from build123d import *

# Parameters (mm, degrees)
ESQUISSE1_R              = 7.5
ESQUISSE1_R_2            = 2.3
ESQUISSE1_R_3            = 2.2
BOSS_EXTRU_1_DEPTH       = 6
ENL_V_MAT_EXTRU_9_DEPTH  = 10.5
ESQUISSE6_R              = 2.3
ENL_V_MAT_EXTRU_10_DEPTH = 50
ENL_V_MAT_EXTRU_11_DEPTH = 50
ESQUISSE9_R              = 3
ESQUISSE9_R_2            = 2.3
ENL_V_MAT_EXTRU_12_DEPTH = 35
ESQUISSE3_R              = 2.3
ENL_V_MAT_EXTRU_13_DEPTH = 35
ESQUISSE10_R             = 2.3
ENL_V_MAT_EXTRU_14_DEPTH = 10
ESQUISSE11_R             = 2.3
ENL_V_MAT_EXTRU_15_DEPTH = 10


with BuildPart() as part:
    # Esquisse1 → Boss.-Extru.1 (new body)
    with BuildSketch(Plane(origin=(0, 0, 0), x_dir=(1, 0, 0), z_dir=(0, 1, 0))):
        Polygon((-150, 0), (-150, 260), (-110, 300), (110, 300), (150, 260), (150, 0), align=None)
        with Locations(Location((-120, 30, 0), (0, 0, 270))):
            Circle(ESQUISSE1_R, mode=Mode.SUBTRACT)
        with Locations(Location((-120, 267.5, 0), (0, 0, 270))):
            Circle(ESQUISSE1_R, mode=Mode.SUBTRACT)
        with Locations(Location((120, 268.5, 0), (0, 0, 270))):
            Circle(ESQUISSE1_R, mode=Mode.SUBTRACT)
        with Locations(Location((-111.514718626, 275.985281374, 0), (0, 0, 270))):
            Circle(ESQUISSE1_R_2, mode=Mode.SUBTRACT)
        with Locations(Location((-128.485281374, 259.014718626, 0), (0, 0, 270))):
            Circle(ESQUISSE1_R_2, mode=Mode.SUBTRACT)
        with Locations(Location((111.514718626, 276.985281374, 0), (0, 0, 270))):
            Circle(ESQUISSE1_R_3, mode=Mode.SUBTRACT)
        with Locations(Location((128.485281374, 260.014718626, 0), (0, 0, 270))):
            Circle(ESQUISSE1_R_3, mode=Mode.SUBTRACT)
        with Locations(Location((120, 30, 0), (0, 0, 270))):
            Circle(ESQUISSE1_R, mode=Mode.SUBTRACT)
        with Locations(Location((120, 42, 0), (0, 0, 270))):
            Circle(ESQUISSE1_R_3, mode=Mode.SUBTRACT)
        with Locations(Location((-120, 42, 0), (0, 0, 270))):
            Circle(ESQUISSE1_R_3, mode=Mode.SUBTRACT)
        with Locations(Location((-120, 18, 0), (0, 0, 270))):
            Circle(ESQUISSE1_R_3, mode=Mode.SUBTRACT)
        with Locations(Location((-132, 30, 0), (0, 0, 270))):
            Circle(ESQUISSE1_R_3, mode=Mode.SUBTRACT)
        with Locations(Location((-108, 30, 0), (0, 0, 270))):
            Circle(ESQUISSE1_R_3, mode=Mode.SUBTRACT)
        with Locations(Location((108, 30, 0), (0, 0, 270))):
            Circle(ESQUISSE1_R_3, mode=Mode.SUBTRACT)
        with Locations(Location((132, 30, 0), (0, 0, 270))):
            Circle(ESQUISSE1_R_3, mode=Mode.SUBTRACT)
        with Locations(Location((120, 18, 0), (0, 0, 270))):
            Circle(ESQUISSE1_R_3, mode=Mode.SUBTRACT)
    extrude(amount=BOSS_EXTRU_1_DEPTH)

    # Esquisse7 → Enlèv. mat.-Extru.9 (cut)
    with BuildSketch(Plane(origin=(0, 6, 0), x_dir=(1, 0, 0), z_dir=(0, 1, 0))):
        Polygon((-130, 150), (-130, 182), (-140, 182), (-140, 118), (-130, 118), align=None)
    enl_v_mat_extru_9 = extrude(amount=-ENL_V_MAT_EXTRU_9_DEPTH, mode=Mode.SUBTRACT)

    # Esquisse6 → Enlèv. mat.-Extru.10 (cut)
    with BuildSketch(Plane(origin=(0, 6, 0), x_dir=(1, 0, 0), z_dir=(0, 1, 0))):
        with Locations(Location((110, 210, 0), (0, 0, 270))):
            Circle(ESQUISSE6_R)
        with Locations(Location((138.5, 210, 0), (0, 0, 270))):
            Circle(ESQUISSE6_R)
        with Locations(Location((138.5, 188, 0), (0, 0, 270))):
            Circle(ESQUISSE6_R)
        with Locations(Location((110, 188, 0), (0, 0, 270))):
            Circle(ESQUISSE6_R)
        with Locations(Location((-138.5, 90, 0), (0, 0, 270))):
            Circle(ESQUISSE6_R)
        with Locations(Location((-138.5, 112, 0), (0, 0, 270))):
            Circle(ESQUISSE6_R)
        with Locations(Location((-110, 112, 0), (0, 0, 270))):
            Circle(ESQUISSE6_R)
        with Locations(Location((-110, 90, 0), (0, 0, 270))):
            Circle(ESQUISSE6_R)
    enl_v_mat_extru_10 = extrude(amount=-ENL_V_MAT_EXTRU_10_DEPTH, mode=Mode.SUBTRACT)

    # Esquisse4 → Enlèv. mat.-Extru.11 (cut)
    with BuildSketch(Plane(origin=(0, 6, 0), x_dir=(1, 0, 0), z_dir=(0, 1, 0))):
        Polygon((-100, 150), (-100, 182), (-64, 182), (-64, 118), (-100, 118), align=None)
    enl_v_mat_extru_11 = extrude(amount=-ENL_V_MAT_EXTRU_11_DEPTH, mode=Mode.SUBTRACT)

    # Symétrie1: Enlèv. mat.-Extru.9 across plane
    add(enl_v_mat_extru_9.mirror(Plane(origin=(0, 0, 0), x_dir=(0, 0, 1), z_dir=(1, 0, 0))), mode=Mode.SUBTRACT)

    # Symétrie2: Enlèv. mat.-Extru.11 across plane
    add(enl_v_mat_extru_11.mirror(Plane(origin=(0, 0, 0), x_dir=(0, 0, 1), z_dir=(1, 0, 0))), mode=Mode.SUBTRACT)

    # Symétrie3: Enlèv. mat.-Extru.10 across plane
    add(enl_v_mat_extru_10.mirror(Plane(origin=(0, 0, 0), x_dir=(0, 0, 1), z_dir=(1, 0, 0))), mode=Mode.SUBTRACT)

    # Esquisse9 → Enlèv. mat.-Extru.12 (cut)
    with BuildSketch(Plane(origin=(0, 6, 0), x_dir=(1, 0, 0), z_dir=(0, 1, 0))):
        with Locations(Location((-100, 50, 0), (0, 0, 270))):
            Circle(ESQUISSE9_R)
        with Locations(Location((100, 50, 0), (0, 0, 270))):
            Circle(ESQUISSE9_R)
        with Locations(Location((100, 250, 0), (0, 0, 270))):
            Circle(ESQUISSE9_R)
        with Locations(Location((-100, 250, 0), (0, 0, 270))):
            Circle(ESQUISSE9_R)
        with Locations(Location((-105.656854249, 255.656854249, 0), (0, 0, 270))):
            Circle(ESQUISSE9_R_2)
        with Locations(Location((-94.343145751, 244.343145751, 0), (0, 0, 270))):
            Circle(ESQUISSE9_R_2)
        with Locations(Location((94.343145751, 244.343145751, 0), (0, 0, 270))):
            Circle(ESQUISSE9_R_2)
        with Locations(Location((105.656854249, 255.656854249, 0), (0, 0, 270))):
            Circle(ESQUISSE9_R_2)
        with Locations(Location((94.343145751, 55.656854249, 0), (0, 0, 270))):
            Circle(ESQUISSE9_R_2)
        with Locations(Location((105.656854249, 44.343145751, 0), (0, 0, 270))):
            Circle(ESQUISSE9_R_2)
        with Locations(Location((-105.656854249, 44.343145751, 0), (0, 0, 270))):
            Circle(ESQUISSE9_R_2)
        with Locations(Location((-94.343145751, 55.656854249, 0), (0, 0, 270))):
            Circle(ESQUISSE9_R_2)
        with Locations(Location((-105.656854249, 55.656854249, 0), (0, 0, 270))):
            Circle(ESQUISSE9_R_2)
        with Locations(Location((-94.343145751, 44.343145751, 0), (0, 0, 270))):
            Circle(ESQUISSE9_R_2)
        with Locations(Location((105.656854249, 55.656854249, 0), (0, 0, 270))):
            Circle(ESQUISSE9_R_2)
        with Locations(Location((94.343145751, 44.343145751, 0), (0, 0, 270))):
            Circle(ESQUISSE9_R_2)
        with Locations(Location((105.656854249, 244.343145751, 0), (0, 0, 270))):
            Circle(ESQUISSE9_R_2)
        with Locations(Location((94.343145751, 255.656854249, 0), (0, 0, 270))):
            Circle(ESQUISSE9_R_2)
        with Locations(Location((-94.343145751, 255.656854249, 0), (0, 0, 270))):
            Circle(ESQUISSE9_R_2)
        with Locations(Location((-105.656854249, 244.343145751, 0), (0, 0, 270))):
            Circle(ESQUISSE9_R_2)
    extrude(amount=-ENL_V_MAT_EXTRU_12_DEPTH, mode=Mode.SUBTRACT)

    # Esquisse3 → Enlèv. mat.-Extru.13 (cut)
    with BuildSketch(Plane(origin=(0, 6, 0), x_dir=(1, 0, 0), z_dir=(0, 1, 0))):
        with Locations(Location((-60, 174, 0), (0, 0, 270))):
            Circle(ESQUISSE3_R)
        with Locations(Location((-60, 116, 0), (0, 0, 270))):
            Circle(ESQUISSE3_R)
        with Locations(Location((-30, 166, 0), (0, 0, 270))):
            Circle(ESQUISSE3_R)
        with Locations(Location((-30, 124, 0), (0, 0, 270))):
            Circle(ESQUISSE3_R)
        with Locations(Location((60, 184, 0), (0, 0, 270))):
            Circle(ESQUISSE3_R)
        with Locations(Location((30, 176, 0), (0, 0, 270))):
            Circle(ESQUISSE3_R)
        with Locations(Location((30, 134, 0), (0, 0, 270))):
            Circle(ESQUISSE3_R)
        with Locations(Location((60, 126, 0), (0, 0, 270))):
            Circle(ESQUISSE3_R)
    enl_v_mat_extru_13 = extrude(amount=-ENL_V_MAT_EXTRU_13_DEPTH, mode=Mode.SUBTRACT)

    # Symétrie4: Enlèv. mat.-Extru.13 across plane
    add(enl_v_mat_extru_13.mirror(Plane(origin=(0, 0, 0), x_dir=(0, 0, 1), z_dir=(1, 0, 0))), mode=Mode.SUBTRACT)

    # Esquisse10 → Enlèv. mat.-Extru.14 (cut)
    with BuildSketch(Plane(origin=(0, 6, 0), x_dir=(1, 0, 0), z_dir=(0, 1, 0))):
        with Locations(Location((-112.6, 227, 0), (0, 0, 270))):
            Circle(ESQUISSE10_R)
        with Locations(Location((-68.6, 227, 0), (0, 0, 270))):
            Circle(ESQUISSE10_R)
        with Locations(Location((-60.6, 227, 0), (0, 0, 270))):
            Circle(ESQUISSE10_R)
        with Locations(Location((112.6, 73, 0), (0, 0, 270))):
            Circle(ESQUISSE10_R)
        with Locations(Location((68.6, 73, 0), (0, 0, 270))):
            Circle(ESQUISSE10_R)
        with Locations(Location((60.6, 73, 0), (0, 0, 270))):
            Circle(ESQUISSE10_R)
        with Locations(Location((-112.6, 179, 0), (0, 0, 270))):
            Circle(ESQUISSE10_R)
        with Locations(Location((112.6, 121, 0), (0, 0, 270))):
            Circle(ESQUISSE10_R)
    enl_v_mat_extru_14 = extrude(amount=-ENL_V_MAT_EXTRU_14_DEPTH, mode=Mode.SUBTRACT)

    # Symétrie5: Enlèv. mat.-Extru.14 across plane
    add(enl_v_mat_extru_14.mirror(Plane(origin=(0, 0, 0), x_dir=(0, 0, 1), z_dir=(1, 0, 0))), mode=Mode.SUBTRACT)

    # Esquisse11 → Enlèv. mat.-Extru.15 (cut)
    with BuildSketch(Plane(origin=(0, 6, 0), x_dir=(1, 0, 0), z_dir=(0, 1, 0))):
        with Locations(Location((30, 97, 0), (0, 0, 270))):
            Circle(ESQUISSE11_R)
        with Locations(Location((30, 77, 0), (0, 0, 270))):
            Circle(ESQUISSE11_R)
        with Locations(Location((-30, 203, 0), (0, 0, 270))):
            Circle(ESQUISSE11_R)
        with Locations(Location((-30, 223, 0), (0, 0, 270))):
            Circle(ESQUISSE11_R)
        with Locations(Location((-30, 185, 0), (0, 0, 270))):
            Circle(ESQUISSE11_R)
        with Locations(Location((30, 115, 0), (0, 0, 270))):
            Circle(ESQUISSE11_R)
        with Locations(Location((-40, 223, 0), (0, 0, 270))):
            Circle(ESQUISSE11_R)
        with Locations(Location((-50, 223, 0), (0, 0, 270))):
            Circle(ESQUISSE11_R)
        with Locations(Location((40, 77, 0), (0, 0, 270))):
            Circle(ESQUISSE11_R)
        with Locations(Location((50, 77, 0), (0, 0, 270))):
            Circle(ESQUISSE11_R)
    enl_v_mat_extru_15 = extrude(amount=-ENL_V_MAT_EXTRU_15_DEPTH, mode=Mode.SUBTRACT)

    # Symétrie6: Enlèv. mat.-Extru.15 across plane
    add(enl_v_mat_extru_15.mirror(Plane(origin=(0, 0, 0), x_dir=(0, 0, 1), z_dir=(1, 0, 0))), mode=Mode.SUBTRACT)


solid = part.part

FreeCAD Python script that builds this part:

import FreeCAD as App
import Part
import Sketcher


def add_polygon(sketch, points):
    """Adds a closed chain of lines whose ends are joined by coincident constraints."""
    first, n = sketch.GeometryCount, len(points)
    for a, b in zip(points, points[1:] + points[:1]):
        sketch.addGeometry(Part.LineSegment(App.Vector(*a, 0), App.Vector(*b, 0)), False)
    for i in range(n):
        sketch.addConstraint(Sketcher.Constraint("Coincident", first + i, 2, first + (i + 1) % n, 1))

doc = App.newDocument("Part")
params = doc.addObject("Spreadsheet::Sheet", "Params")
for row, (alias, value) in enumerate([
    ("sketch1_diameter", "15 mm"),
    ("sketch1_diameter2", "4.4 mm"),
    ("sketch1_diameter3", "4.6 mm"),
    ("sketch1_width", "300 mm"),
    ("sketch1_width2", "220 mm"),
    ("pad1_length", "6 mm"),
    ("sketch2_width", "10 mm"),
    ("sketch2_height", "64 mm"),
    ("pocket1_length", "10.5 mm"),
    ("sketch3_diameter", "4.6 mm"),
    ("pocket2_length", "50 mm"),
    ("sketch4_width", "36 mm"),
    ("sketch4_height", "64 mm"),
    ("pocket3_length", "50 mm"),
    ("sketch5_diameter", "6 mm"),
    ("sketch5_diameter2", "4.6 mm"),
    ("pocket4_length", "35 mm"),
    ("sketch6_diameter", "4.6 mm"),
    ("pocket5_length", "35 mm"),
    ("sketch7_diameter", "4.6 mm"),
    ("pocket6_length", "10 mm"),
    ("sketch8_diameter", "4.6 mm"),
    ("pocket7_length", "10 mm"),
], start=1):
    params.set(f"A{row}", alias)
    params.set(f"B{row}", "=" + value)
    params.setAlias(f"B{row}", alias)

body = doc.addObject("PartDesign::Body", "Body")

sketch1 = body.newObject("Sketcher::SketchObject", "Sketch")
sketch1.AttachmentSupport = (doc.getObject("XZ_Plane"), [""])
sketch1.MapMode = "FlatFace"
add_polygon(sketch1, [(-150, -260), (-150, 0), (150, 0), (150, -260), (110, -300), (-110, -300)])
sketch1.addGeometry(Part.Circle(App.Vector(120, -18, 0), App.Vector(0, 0, 1), 2.2), False)
sketch1.addGeometry(Part.Circle(App.Vector(132, -30, 0), App.Vector(0, 0, 1), 2.2), False)
sketch1.addGeometry(Part.Circle(App.Vector(120, -30, 0), App.Vector(0, 0, 1), 7.5), False)
sketch1.addGeometry(Part.Circle(App.Vector(108, -30, 0), App.Vector(0, 0, 1), 2.2), False)
sketch1.addGeometry(Part.Circle(App.Vector(120, -42, 0), App.Vector(0, 0, 1), 2.2), False)
sketch1.addGeometry(Part.Circle(App.Vector(-108, -30, 0), App.Vector(0, 0, 1), 2.2), False)
sketch1.addGeometry(Part.Circle(App.Vector(-120, -18, 0), App.Vector(0, 0, 1), 2.2), False)
sketch1.addGeometry(Part.Circle(App.Vector(-120, -30, 0), App.Vector(0, 0, 1), 7.5), False)
sketch1.addGeometry(Part.Circle(App.Vector(-132, -30, 0), App.Vector(0, 0, 1), 2.2), False)
sketch1.addGeometry(Part.Circle(App.Vector(-120, -42, 0), App.Vector(0, 0, 1), 2.2), False)
sketch1.addGeometry(Part.Circle(App.Vector(128.485281, -260.014719, 0), App.Vector(0, 0, 1), 2.2), False)
sketch1.addGeometry(Part.Circle(App.Vector(120, -268.5, 0), App.Vector(0, 0, 1), 7.5), False)
sketch1.addGeometry(Part.Circle(App.Vector(111.514719, -276.985281, 0), App.Vector(0, 0, 1), 2.2), False)
sketch1.addGeometry(Part.Circle(App.Vector(-128.485281, -259.014719, 0), App.Vector(0, 0, 1), 2.3), False)
sketch1.addGeometry(Part.Circle(App.Vector(-111.514719, -275.985281, 0), App.Vector(0, 0, 1), 2.3), False)
sketch1.addGeometry(Part.Circle(App.Vector(-120, -267.5, 0), App.Vector(0, 0, 1), 7.5), False)
sketch1.addConstraint([
    Sketcher.Constraint("Vertical", 0),
    Sketcher.Constraint("Horizontal", 1),
    Sketcher.Constraint("Vertical", 2),
    Sketcher.Constraint("Horizontal", 4),
    Sketcher.Constraint("Equal", 6, 7),
    Sketcher.Constraint("Equal", 7, 9),
    Sketcher.Constraint("Equal", 9, 10),
    Sketcher.Constraint("Equal", 10, 11),
    Sketcher.Constraint("Equal", 11, 12),
    Sketcher.Constraint("Equal", 8, 13),
    Sketcher.Constraint("Equal", 12, 14),
    Sketcher.Constraint("Equal", 14, 15),
    Sketcher.Constraint("Equal", 15, 16),
    Sketcher.Constraint("Equal", 13, 17),
    Sketcher.Constraint("Equal", 16, 18),
    Sketcher.Constraint("Equal", 19, 20),
    Sketcher.Constraint("Equal", 17, 21),
    Sketcher.Constraint("Symmetric", 0, 2, 1, 2, -1, 1),
    Sketcher.Constraint("Symmetric", 9, 3, 11, 3, -2),
    Sketcher.Constraint("Symmetric", 6, 3, 12, 3, -2),
    Sketcher.Constraint("Symmetric", 8, 3, 13, 3, -2),
    Sketcher.Constraint("Symmetric", 7, 3, 14, 3, -2),
    Sketcher.Constraint("Symmetric", 10, 3, 15, 3, -2),
    Sketcher.Constraint("Perpendicular", 3, 5),
    Sketcher.Constraint("Horizontal", 7, 3, 8, 3),
    Sketcher.Constraint("Horizontal", 8, 3, 9, 3),
    Sketcher.Constraint("Horizontal", 2, 2, 5, 2),
    Sketcher.Constraint("Vertical", 6, 3, 8, 3),
    Sketcher.Constraint("Vertical", 8, 3, 10, 3),
    Sketcher.Constraint("Vertical", 10, 3, 17, 3),
    Sketcher.Constraint("Vertical", 15, 3, 21, 3),
    Sketcher.Constraint("Equal", 3, 5),
    Sketcher.Constraint("Diameter", 8, 15.0),
    Sketcher.Constraint("Diameter", 6, 4.4),
    Sketcher.Constraint("Diameter", 19, 4.6),
    Sketcher.Constraint("DistanceX", 1, 1, 1, 2, 300.0),
    Sketcher.Constraint("DistanceX", 4, 2, 4, 1, 220.0),
    Sketcher.Constraint("DistanceY", 0, 1, 0, 2, 260.0),
    Sketcher.Constraint("DistanceX", -1, 1, 6, 3, 120.0),
    Sketcher.Constraint("DistanceY", 6, 3, -1, 1, 18.0),
    Sketcher.Constraint("DistanceX", -1, 1, 7, 3, 132.0),
    Sketcher.Constraint("DistanceY", 7, 3, -1, 1, 30.0),
    Sketcher.Constraint("DistanceX", -1, 1, 9, 3, 108.0),
    Sketcher.Constraint("DistanceY", 10, 3, -1, 1, 42.0),
    Sketcher.Constraint("DistanceX", 19, 3, 18, 3, 240.0),
    Sketcher.Constraint("DistanceY", 18, 3, 20, 3, 1.0),
    Sketcher.Constraint("DistanceX", 20, 3, 16, 3, 240.0),
    Sketcher.Constraint("DistanceY", 17, 3, -1, 1, 268.5),
    Sketcher.Constraint("DistanceY", 21, 3, -1, 1, 267.5),
    Sketcher.Constraint("DistanceX", -1, 1, 16, 3, 128.485281),
    Sketcher.Constraint("DistanceY", 16, 3, -1, 1, 260.014719),
    Sketcher.Constraint("DistanceX", -1, 1, 18, 3, 111.514719),
    Sketcher.Constraint("DistanceY", 18, 3, -1, 1, 276.985281),
    Sketcher.Constraint("DistanceY", 19, 3, -1, 1, 259.014719),
])
sketch1.setExpression("Constraints[38]", "Params.sketch1_diameter")
sketch1.setExpression("Constraints[39]", "Params.sketch1_diameter2")
sketch1.setExpression("Constraints[40]", "Params.sketch1_diameter3")
sketch1.setExpression("Constraints[41]", "Params.sketch1_width")
sketch1.setExpression("Constraints[42]", "Params.sketch1_width2")
pad1 = body.newObject("PartDesign::Pad", "Pad")
pad1.Profile = sketch1
pad1.setExpression("Length", "Params.pad1_length")
pad1.Reversed = True

sketch2 = body.newObject("Sketcher::SketchObject", "Sketch001")
sketch2.AttachmentSupport = (doc.getObject("XZ_Plane"), [""])
sketch2.MapMode = "FlatFace"
sketch2.AttachmentOffset = App.Placement(App.Vector(0, 0, -6), App.Rotation())
add_polygon(sketch2, [(-130, -182), (-140, -182), (-140, -118), (-130, -118)])
sketch2.addConstraint([
    Sketcher.Constraint("Horizontal", 0),
    Sketcher.Constraint("Vertical", 1),
    Sketcher.Constraint("Horizontal", 2),
    Sketcher.Constraint("Vertical", 3),
    Sketcher.Constraint("DistanceX", 0, 2, 0, 1, 10.0),
    Sketcher.Constraint("DistanceY", 1, 1, 1, 2, 64.0),
    Sketcher.Constraint("DistanceX", 0, 2, -1, 1, 140.0),
    Sketcher.Constraint("DistanceY", 0, 2, -1, 1, 182.0),
])
sketch2.setExpression("Constraints[8]", "Params.sketch2_width")
sketch2.setExpression("Constraints[9]", "Params.sketch2_height")
pocket1 = body.newObject("PartDesign::Pocket", "Pocket")
pocket1.Profile = sketch2
pocket1.setExpression("Length", "Params.pocket1_length")
pocket1.Reversed = True

sketch3 = body.newObject("Sketcher::SketchObject", "Sketch002")
sketch3.AttachmentSupport = (doc.getObject("XZ_Plane"), [""])
sketch3.MapMode = "FlatFace"
sketch3.AttachmentOffset = App.Placement(App.Vector(0, 0, -6), App.Rotation())
sketch3.addGeometry([
    Part.Circle(App.Vector(110, -210, 0), App.Vector(0, 0, 1), 2.3),
    Part.Circle(App.Vector(138.5, -210, 0), App.Vector(0, 0, 1), 2.3),
    Part.Circle(App.Vector(138.5, -188, 0), App.Vector(0, 0, 1), 2.3),
    Part.Circle(App.Vector(110, -188, 0), App.Vector(0, 0, 1), 2.3),
    Part.Circle(App.Vector(-138.5, -90, 0), App.Vector(0, 0, 1), 2.3),
    Part.Circle(App.Vector(-138.5, -112, 0), App.Vector(0, 0, 1), 2.3),
    Part.Circle(App.Vector(-110, -112, 0), App.Vector(0, 0, 1), 2.3),
    Part.Circle(App.Vector(-110, -90, 0), App.Vector(0, 0, 1), 2.3),
], False)
sketch3.addConstraint([
    Sketcher.Constraint("Equal", 0, 1),
    Sketcher.Constraint("Equal", 1, 2),
    Sketcher.Constraint("Equal", 2, 3),
    Sketcher.Constraint("Equal", 3, 4),
    Sketcher.Constraint("Equal", 4, 5),
    Sketcher.Constraint("Equal", 5, 6),
    Sketcher.Constraint("Equal", 6, 7),
    Sketcher.Constraint("Horizontal", 0, 3, 1, 3),
    Sketcher.Constraint("Horizontal", 2, 3, 3, 3),
    Sketcher.Constraint("Horizontal", 5, 3, 6, 3),
    Sketcher.Constraint("Horizontal", 4, 3, 7, 3),
    Sketcher.Constraint("Vertical", 1, 3, 2, 3),
    Sketcher.Constraint("Vertical", 0, 3, 3, 3),
    Sketcher.Constraint("Vertical", 4, 3, 5, 3),
    Sketcher.Constraint("Vertical", 6, 3, 7, 3),
    Sketcher.Constraint("Diameter", 0, 4.6),
    Sketcher.Constraint("DistanceX", -1, 1, 0, 3, 110.0),
    Sketcher.Constraint("DistanceY", 0, 3, -1, 1, 210.0),
    Sketcher.Constraint("DistanceY", 2, 3, -1, 1, 188.0),
    Sketcher.Constraint("DistanceY", 4, 3, -1, 1, 90.0),
    Sketcher.Constraint("DistanceY", 5, 3, -1, 1, 112.0),
    Sketcher.Constraint("DistanceX", 6, 3, -1, 1, 110.0),
    Sketcher.Constraint("DistanceX", 4, 3, 2, 3, 277.0),
    Sketcher.Constraint("DistanceX", -1, 1, 1, 3, 138.5),
])
sketch3.setExpression("Constraints[15]", "Params.sketch3_diameter")
pocket2 = body.newObject("PartDesign::Pocket", "Pocket001")
pocket2.Profile = sketch3
pocket2.setExpression("Length", "Params.pocket2_length")
pocket2.Reversed = True

sketch4 = body.newObject("Sketcher::SketchObject", "Sketch003")
sketch4.AttachmentSupport = (doc.getObject("XZ_Plane"), [""])
sketch4.MapMode = "FlatFace"
sketch4.AttachmentOffset = App.Placement(App.Vector(0, 0, -6), App.Rotation())
add_polygon(sketch4, [(-100, -182), (-100, -118), (-64, -118), (-64, -182)])
sketch4.addConstraint([
    Sketcher.Constraint("Vertical", 0),
    Sketcher.Constraint("Horizontal", 1),
    Sketcher.Constraint("Vertical", 2),
    Sketcher.Constraint("Horizontal", 3),
    Sketcher.Constraint("DistanceX", 1, 1, 1, 2, 36.0),
    Sketcher.Constraint("DistanceY", 0, 1, 0, 2, 64.0),
    Sketcher.Constraint("DistanceX", 0, 2, -1, 1, 100.0),
    Sketcher.Constraint("DistanceY", 0, 2, -1, 1, 118.0),
])
sketch4.setExpression("Constraints[8]", "Params.sketch4_width")
sketch4.setExpression("Constraints[9]", "Params.sketch4_height")
pocket3 = body.newObject("PartDesign::Pocket", "Pocket002")
pocket3.Profile = sketch4
pocket3.setExpression("Length", "Params.pocket3_length")
pocket3.Reversed = True
doc.recompute()

mirrored = body.newObject("PartDesign::Mirrored", "Mirrored")
mirrored.Originals = [pocket1]
mirrored.MirrorPlane = (doc.getObject("YZ_Plane"), [""])
body.Tip = mirrored
doc.recompute()

mirrored2 = body.newObject("PartDesign::Mirrored", "Mirrored001")
mirrored2.Originals = [pocket3]
mirrored2.MirrorPlane = (doc.getObject("YZ_Plane"), [""])
body.Tip = mirrored2
doc.recompute()

mirrored3 = body.newObject("PartDesign::Mirrored", "Mirrored002")
mirrored3.Originals = [pocket2]
mirrored3.MirrorPlane = (doc.getObject("YZ_Plane"), [""])
body.Tip = mirrored3

sketch5 = body.newObject("Sketcher::SketchObject", "Sketch004")
sketch5.AttachmentSupport = (doc.getObject("XZ_Plane"), [""])
sketch5.MapMode = "FlatFace"
sketch5.AttachmentOffset = App.Placement(App.Vector(0, 0, -6), App.Rotation())
sketch5.addGeometry([
    Part.Circle(App.Vector(-100, -50, 0), App.Vector(0, 0, 1), 3),
    Part.Circle(App.Vector(100, -50, 0), App.Vector(0, 0, 1), 3),
    Part.Circle(App.Vector(100, -250, 0), App.Vector(0, 0, 1), 3),
    Part.Circle(App.Vector(-100, -250, 0), App.Vector(0, 0, 1), 3),
    Part.Circle(App.Vector(-105.656854, -255.656854, 0), App.Vector(0, 0, 1), 2.3),
    Part.Circle(App.Vector(-94.343146, -244.343146, 0), App.Vector(0, 0, 1), 2.3),
    Part.Circle(App.Vector(94.343146, -244.343146, 0), App.Vector(0, 0, 1), 2.3),
    Part.Circle(App.Vector(105.656854, -255.656854, 0), App.Vector(0, 0, 1), 2.3),
    Part.Circle(App.Vector(94.343146, -55.656854, 0), App.Vector(0, 0, 1), 2.3),
    Part.Circle(App.Vector(105.656854, -44.343146, 0), App.Vector(0, 0, 1), 2.3),
    Part.Circle(App.Vector(-105.656854, -44.343146, 0), App.Vector(0, 0, 1), 2.3),
    Part.Circle(App.Vector(-94.343146, -55.656854, 0), App.Vector(0, 0, 1), 2.3),
    Part.Circle(App.Vector(-105.656854, -55.656854, 0), App.Vector(0, 0, 1), 2.3),
    Part.Circle(App.Vector(-94.343146, -44.343146, 0), App.Vector(0, 0, 1), 2.3),
    Part.Circle(App.Vector(105.656854, -55.656854, 0), App.Vector(0, 0, 1), 2.3),
    Part.Circle(App.Vector(94.343146, -44.343146, 0), App.Vector(0, 0, 1), 2.3),
    Part.Circle(App.Vector(105.656854, -244.343146, 0), App.Vector(0, 0, 1), 2.3),
    Part.Circle(App.Vector(94.343146, -255.656854, 0), App.Vector(0, 0, 1), 2.3),
    Part.Circle(App.Vector(-94.343146, -255.656854, 0), App.Vector(0, 0, 1), 2.3),
    Part.Circle(App.Vector(-105.656854, -244.343146, 0), App.Vector(0, 0, 1), 2.3),
], False)
sketch5.addConstraint([
    Sketcher.Constraint("Equal", 0, 1),
    Sketcher.Constraint("Equal", 1, 2),
    Sketcher.Constraint("Equal", 2, 3),
    Sketcher.Constraint("Equal", 4, 5),
    Sketcher.Constraint("Equal", 5, 6),
    Sketcher.Constraint("Equal", 6, 7),
    Sketcher.Constraint("Equal", 7, 8),
    Sketcher.Constraint("Equal", 8, 9),
    Sketcher.Constraint("Equal", 9, 10),
    Sketcher.Constraint("Equal", 10, 11),
    Sketcher.Constraint("Equal", 11, 12),
    Sketcher.Constraint("Equal", 12, 13),
    Sketcher.Constraint("Equal", 13, 14),
    Sketcher.Constraint("Equal", 14, 15),
    Sketcher.Constraint("Equal", 15, 16),
    Sketcher.Constraint("Equal", 16, 17),
    Sketcher.Constraint("Equal", 17, 18),
    Sketcher.Constraint("Equal", 18, 19),
    Sketcher.Constraint("Symmetric", 0, 3, 1, 3, -2),
    Sketcher.Constraint("Symmetric", 2, 3, 3, 3, -2),
    Sketcher.Constraint("Symmetric", 5, 3, 6, 3, -2),
    Sketcher.Constraint("Symmetric", 4, 3, 7, 3, -2),
    Sketcher.Constraint("Symmetric", 9, 3, 10, 3, -2),
    Sketcher.Constraint("Symmetric", 8, 3, 11, 3, -2),
    Sketcher.Constraint("Symmetric", 12, 3, 14, 3, -2),
    Sketcher.Constraint("Symmetric", 13, 3, 15, 3, -2),
    Sketcher.Constraint("Symmetric", 17, 3, 18, 3, -2),
    Sketcher.Constraint("Symmetric", 16, 3, 19, 3, -2),
    Sketcher.Constraint("Horizontal", 11, 3, 12, 3),
    Sketcher.Constraint("Horizontal", 10, 3, 13, 3),
    Sketcher.Constraint("Horizontal", 6, 3, 16, 3),
    Sketcher.Constraint("Horizontal", 7, 3, 17, 3),
    Sketcher.Constraint("Vertical", 1, 3, 2, 3),
    Sketcher.Constraint("Vertical", 6, 3, 8, 3),
    Sketcher.Constraint("Vertical", 7, 3, 9, 3),
    Sketcher.Constraint("Vertical", 10, 3, 12, 3),
    Sketcher.Constraint("Vertical", 11, 3, 13, 3),
    Sketcher.Constraint("Vertical", 14, 3, 16, 3),
    Sketcher.Constraint("Vertical", 15, 3, 17, 3),
    Sketcher.Constraint("Diameter", 0, 6.0),
    Sketcher.Constraint("Diameter", 4, 4.6),
    Sketcher.Constraint("DistanceX", 0, 3, -1, 1, 100.0),
    Sketcher.Constraint("DistanceY", 0, 3, -1, 1, 50.0),
    Sketcher.Constraint("DistanceY", 2, 3, -1, 1, 250.0),
    Sketcher.Constraint("DistanceX", 4, 3, 6, 3, 200.0),
    Sketcher.Constraint("DistanceY", 7, 3, 8, 3, 200.0),
    Sketcher.Constraint("DistanceY", 6, 3, 9, 3, 200.0),
    Sketcher.Constraint("DistanceX", 4, 3, 5, 3, 11.313708),
    Sketcher.Constraint("DistanceY", 4, 3, 5, 3, 11.313708),
    Sketcher.Constraint("DistanceY", 4, 3, -1, 1, 255.656854),
])
sketch5.setExpression("Constraints[39]", "Params.sketch5_diameter")
sketch5.setExpression("Constraints[40]", "Params.sketch5_diameter2")
pocket4 = body.newObject("PartDesign::Pocket", "Pocket003")
pocket4.Profile = sketch5
pocket4.setExpression("Length", "Params.pocket4_length")
pocket4.Reversed = True

sketch6 = body.newObject("Sketcher::SketchObject", "Sketch005")
sketch6.AttachmentSupport = (doc.getObject("XZ_Plane"), [""])
sketch6.MapMode = "FlatFace"
sketch6.AttachmentOffset = App.Placement(App.Vector(0, 0, -6), App.Rotation())
sketch6.addGeometry([
    Part.Circle(App.Vector(-60, -174, 0), App.Vector(0, 0, 1), 2.3),
    Part.Circle(App.Vector(-60, -116, 0), App.Vector(0, 0, 1), 2.3),
    Part.Circle(App.Vector(-30, -166, 0), App.Vector(0, 0, 1), 2.3),
    Part.Circle(App.Vector(-30, -124, 0), App.Vector(0, 0, 1), 2.3),
    Part.Circle(App.Vector(60, -184, 0), App.Vector(0, 0, 1), 2.3),
    Part.Circle(App.Vector(30, -176, 0), App.Vector(0, 0, 1), 2.3),
    Part.Circle(App.Vector(30, -134, 0), App.Vector(0, 0, 1), 2.3),
    Part.Circle(App.Vector(60, -126, 0), App.Vector(0, 0, 1), 2.3),
], False)
sketch6.addConstraint([
    Sketcher.Constraint("Equal", 0, 1),
    Sketcher.Constraint("Equal", 1, 2),
    Sketcher.Constraint("Equal", 2, 3),
    Sketcher.Constraint("Equal", 3, 4),
    Sketcher.Constraint("Equal", 4, 5),
    Sketcher.Constraint("Equal", 5, 6),
    Sketcher.Constraint("Equal", 6, 7),
    Sketcher.Constraint("Vertical", 0, 3, 1, 3),
    Sketcher.Constraint("Vertical", 2, 3, 3, 3),
    Sketcher.Constraint("Vertical", 5, 3, 6, 3),
    Sketcher.Constraint("Vertical", 4, 3, 7, 3),
    Sketcher.Constraint("Diameter", 0, 4.6),
    Sketcher.Constraint("DistanceX", 0, 3, -1, 1, 60.0),
    Sketcher.Constraint("DistanceY", 0, 3, -1, 1, 174.0),
    Sketcher.Constraint("DistanceY", 1, 3, -1, 1, 116.0),
    Sketcher.Constraint("DistanceX", 2, 3, -1, 1, 30.0),
    Sketcher.Constraint("DistanceY", 2, 3, -1, 1, 166.0),
    Sketcher.Constraint("DistanceY", 3, 3, -1, 1, 124.0),
    Sketcher.Constraint("DistanceX", -1, 1, 4, 3, 60.0),
    Sketcher.Constraint("DistanceY", 4, 3, -1, 1, 184.0),
    Sketcher.Constraint("DistanceX", -1, 1, 5, 3, 30.0),
    Sketcher.Constraint("DistanceY", 5, 3, -1, 1, 176.0),
    Sketcher.Constraint("DistanceY", 6, 3, -1, 1, 134.0),
    Sketcher.Constraint("DistanceY", 7, 3, -1, 1, 126.0),
])
sketch6.setExpression("Constraints[11]", "Params.sketch6_diameter")
pocket5 = body.newObject("PartDesign::Pocket", "Pocket004")
pocket5.Profile = sketch6
pocket5.setExpression("Length", "Params.pocket5_length")
pocket5.Reversed = True
doc.recompute()

mirrored4 = body.newObject("PartDesign::Mirrored", "Mirrored003")
mirrored4.Originals = [pocket5]
mirrored4.MirrorPlane = (doc.getObject("YZ_Plane"), [""])
body.Tip = mirrored4

sketch7 = body.newObject("Sketcher::SketchObject", "Sketch006")
sketch7.AttachmentSupport = (doc.getObject("XZ_Plane"), [""])
sketch7.MapMode = "FlatFace"
sketch7.AttachmentOffset = App.Placement(App.Vector(0, 0, -6), App.Rotation())
sketch7.addGeometry([
    Part.Circle(App.Vector(-112.6, -227, 0), App.Vector(0, 0, 1), 2.3),
    Part.Circle(App.Vector(-68.6, -227, 0), App.Vector(0, 0, 1), 2.3),
    Part.Circle(App.Vector(-60.6, -227, 0), App.Vector(0, 0, 1), 2.3),
    Part.Circle(App.Vector(112.6, -73, 0), App.Vector(0, 0, 1), 2.3),
    Part.Circle(App.Vector(68.6, -73, 0), App.Vector(0, 0, 1), 2.3),
    Part.Circle(App.Vector(60.6, -73, 0), App.Vector(0, 0, 1), 2.3),
    Part.Circle(App.Vector(-112.6, -179, 0), App.Vector(0, 0, 1), 2.3),
    Part.Circle(App.Vector(112.6, -121, 0), App.Vector(0, 0, 1), 2.3),
], False)
sketch7.addConstraint([
    Sketcher.Constraint("Equal", 0, 1),
    Sketcher.Constraint("Equal", 1, 2),
    Sketcher.Constraint("Equal", 2, 3),
    Sketcher.Constraint("Equal", 3, 4),
    Sketcher.Constraint("Equal", 4, 5),
    Sketcher.Constraint("Equal", 5, 6),
    Sketcher.Constraint("Equal", 6, 7),
    Sketcher.Constraint("Horizontal", 0, 3, 1, 3),
    Sketcher.Constraint("Horizontal", 1, 3, 2, 3),
    Sketcher.Constraint("Horizontal", 3, 3, 4, 3),
    Sketcher.Constraint("Horizontal", 4, 3, 5, 3),
    Sketcher.Constraint("Vertical", 0, 3, 6, 3),
    Sketcher.Constraint("Vertical", 3, 3, 7, 3),
    Sketcher.Constraint("Diameter", 0, 4.6),
    Sketcher.Constraint("DistanceY", 0, 3, -1, 1, 227.0),
    Sketcher.Constraint("DistanceY", 3, 3, -1, 1, 73.0),
    Sketcher.Constraint("DistanceY", 6, 3, -1, 1, 179.0),
    Sketcher.Constraint("DistanceY", 7, 3, -1, 1, 121.0),
    Sketcher.Constraint("DistanceX", 0, 3, 1, 3, 44.0),
    Sketcher.Constraint("DistanceX", 1, 3, 2, 3, 8.0),
    Sketcher.Constraint("DistanceX", 4, 3, 3, 3, 44.0),
    Sketcher.Constraint("DistanceX", 5, 3, 4, 3, 8.0),
    Sketcher.Constraint("DistanceX", 0, 3, -1, 1, 112.6),
    Sketcher.Constraint("DistanceX", -1, 1, 3, 3, 112.6),
])
sketch7.setExpression("Constraints[13]", "Params.sketch7_diameter")
pocket6 = body.newObject("PartDesign::Pocket", "Pocket005")
pocket6.Profile = sketch7
pocket6.setExpression("Length", "Params.pocket6_length")
pocket6.Reversed = True
doc.recompute()

mirrored5 = body.newObject("PartDesign::Mirrored", "Mirrored004")
mirrored5.Originals = [pocket6]
mirrored5.MirrorPlane = (doc.getObject("YZ_Plane"), [""])
body.Tip = mirrored5

sketch8 = body.newObject("Sketcher::SketchObject", "Sketch007")
sketch8.AttachmentSupport = (doc.getObject("XZ_Plane"), [""])
sketch8.MapMode = "FlatFace"
sketch8.AttachmentOffset = App.Placement(App.Vector(0, 0, -6), App.Rotation())
sketch8.addGeometry([
    Part.Circle(App.Vector(30, -97, 0), App.Vector(0, 0, 1), 2.3),
    Part.Circle(App.Vector(30, -77, 0), App.Vector(0, 0, 1), 2.3),
    Part.Circle(App.Vector(-30, -203, 0), App.Vector(0, 0, 1), 2.3),
    Part.Circle(App.Vector(-30, -223, 0), App.Vector(0, 0, 1), 2.3),
    Part.Circle(App.Vector(-30, -185, 0), App.Vector(0, 0, 1), 2.3),
    Part.Circle(App.Vector(30, -115, 0), App.Vector(0, 0, 1), 2.3),
    Part.Circle(App.Vector(-40, -223, 0), App.Vector(0, 0, 1), 2.3),
    Part.Circle(App.Vector(-50, -223, 0), App.Vector(0, 0, 1), 2.3),
    Part.Circle(App.Vector(40, -77, 0), App.Vector(0, 0, 1), 2.3),
    Part.Circle(App.Vector(50, -77, 0), App.Vector(0, 0, 1), 2.3),
], False)
sketch8.addConstraint([
    Sketcher.Constraint("Equal", 0, 1),
    Sketcher.Constraint("Equal", 1, 2),
    Sketcher.Constraint("Equal", 2, 3),
    Sketcher.Constraint("Equal", 3, 4),
    Sketcher.Constraint("Equal", 4, 5),
    Sketcher.Constraint("Equal", 5, 6),
    Sketcher.Constraint("Equal", 6, 7),
    Sketcher.Constraint("Equal", 7, 8),
    Sketcher.Constraint("Equal", 8, 9),
    Sketcher.Constraint("Horizontal", 3, 3, 6, 3),
    Sketcher.Constraint("Horizontal", 6, 3, 7, 3),
    Sketcher.Constraint("Horizontal", 1, 3, 8, 3),
    Sketcher.Constraint("Horizontal", 8, 3, 9, 3),
    Sketcher.Constraint("Vertical", 0, 3, 1, 3),
    Sketcher.Constraint("Vertical", 2, 3, 3, 3),
    Sketcher.Constraint("Vertical", 3, 3, 4, 3),
    Sketcher.Constraint("Vertical", 1, 3, 5, 3),
    Sketcher.Constraint("Diameter", 0, 4.6),
    Sketcher.Constraint("DistanceX", -1, 1, 0, 3, 30.0),
    Sketcher.Constraint("DistanceY", 0, 3, -1, 1, 97.0),
    Sketcher.Constraint("DistanceY", 1, 3, -1, 1, 77.0),
    Sketcher.Constraint("DistanceX", 2, 3, -1, 1, 30.0),
    Sketcher.Constraint("DistanceY", 2, 3, -1, 1, 203.0),
    Sketcher.Constraint("DistanceY", 3, 3, -1, 1, 223.0),
    Sketcher.Constraint("DistanceY", 4, 3, -1, 1, 185.0),
    Sketcher.Constraint("DistanceY", 5, 3, -1, 1, 115.0),
    Sketcher.Constraint("DistanceX", 6, 3, -1, 1, 40.0),
    Sketcher.Constraint("DistanceX", 7, 3, -1, 1, 50.0),
    Sketcher.Constraint("DistanceX", -1, 1, 8, 3, 40.0),
    Sketcher.Constraint("DistanceX", -1, 1, 9, 3, 50.0),
])
sketch8.setExpression("Constraints[17]", "Params.sketch8_diameter")
pocket7 = body.newObject("PartDesign::Pocket", "Pocket006")
pocket7.Profile = sketch8
pocket7.setExpression("Length", "Params.pocket7_length")
pocket7.Reversed = True
doc.recompute()

mirrored6 = body.newObject("PartDesign::Mirrored", "Mirrored005")
mirrored6.Originals = [pocket7]
mirrored6.MirrorPlane = (doc.getObject("YZ_Plane"), [""])
body.Tip = mirrored6

doc.recompute()
